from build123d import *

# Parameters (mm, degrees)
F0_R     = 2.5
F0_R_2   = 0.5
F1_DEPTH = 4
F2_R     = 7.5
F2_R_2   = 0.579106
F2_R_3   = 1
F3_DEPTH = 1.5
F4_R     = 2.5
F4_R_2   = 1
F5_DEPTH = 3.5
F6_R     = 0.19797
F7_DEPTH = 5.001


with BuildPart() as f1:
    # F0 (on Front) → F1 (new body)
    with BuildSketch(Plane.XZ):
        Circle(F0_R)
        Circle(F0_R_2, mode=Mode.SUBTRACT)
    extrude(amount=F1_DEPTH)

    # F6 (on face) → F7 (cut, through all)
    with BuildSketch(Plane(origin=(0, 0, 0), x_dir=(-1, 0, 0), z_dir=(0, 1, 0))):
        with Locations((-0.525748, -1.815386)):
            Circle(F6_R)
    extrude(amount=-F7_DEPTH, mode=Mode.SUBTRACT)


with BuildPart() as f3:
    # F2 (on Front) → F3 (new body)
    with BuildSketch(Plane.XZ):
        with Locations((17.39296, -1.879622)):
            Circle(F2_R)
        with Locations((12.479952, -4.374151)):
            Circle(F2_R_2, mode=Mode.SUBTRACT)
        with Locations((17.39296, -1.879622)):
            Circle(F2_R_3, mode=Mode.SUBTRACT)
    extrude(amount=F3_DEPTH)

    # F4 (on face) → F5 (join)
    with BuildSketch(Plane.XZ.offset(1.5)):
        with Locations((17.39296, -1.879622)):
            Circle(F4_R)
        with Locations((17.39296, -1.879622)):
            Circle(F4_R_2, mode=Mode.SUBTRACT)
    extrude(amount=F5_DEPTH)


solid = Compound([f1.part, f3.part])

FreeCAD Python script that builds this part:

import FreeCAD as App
import Part
import Sketcher

V = App.Vector
Q = App.Units.Quantity

doc = App.newDocument("Part")
body = doc.addObject("PartDesign::Body", "Body")

# Sketch on XZ plane
sketch1 = body.newObject("Sketcher::SketchObject", "Sketch")
sketch1.AttachmentSupport = (doc.getObject("XZ_Plane"), [""])
sketch1.MapMode = "FlatFace"
sketch1.addGeometry(Part.Circle(V(0, 0, 0), V(0, 0, 1), 2.5), False)
sketch1.addGeometry(Part.Circle(V(0, 0, 0), V(0, 0, 1), 0.5), False)
sketch1.addConstraint(Sketcher.Constraint("Coincident", 0, 3, -1, 1))
sketch1.addConstraint(Sketcher.Constraint("Coincident", 1, 3, -1, 1))
sketch1.addConstraint(Sketcher.Constraint("Diameter", 0, Q("5 mm")))
sketch1.addConstraint(Sketcher.Constraint("Diameter", 1, Q("1 mm")))
pad1 = body.newObject("PartDesign::Pad", "Pad")
pad1.Profile = sketch1
pad1.Length = 4

# Sketch on XZ plane
sketch2 = body.newObject("Sketcher::SketchObject", "Sketch001")
sketch2.AttachmentSupport = (doc.getObject("XZ_Plane"), [""])
sketch2.MapMode = "FlatFace"
sketch2.addGeometry(Part.Circle(V(0.53, -1.82, 0), V(0, 0, 1), 0.2), False)
sketch2.addConstraint(Sketcher.Constraint("Diameter", 0, Q("0.39594 mm")))
sketch2.addConstraint(Sketcher.Constraint("DistanceX", -1, 1, 0, 3, Q("0.525748 mm")))
sketch2.addConstraint(Sketcher.Constraint("DistanceY", 0, 3, -1, 1, Q("1.815386 mm")))
pocket1 = body.newObject("PartDesign::Pocket", "Pocket")
pocket1.Profile = sketch2
pocket1.Type = "ThroughAll"
pocket1.Reversed = True
body2 = doc.addObject("PartDesign::Body", "Body001")

# Sketch on XZ plane
sketch3 = body2.newObject("Sketcher::SketchObject", "Sketch002")
sketch3.AttachmentSupport = (doc.getObject("XZ_Plane001"), [""])
sketch3.MapMode = "FlatFace"
sketch3.addGeometry(Part.Circle(V(17.4, -1.9, 0), V(0, 0, 1), 7.5), False)
sketch3.addGeometry(Part.Circle(V(12.5, -4.4, 0), V(0, 0, 1), 0.6), False)
sketch3.addGeometry(Part.Circle(V(17.4, -1.9, 0), V(0, 0, 1), 1), False)
sketch3.addConstraint(Sketcher.Constraint("Coincident", 2, 3, 0, 3))
sketch3.addConstraint(Sketcher.Constraint("Diameter", 0, Q("15 mm")))
sketch3.addConstraint(Sketcher.Constraint("Diameter", 2, Q("2 mm")))
sketch3.addConstraint(Sketcher.Constraint("Diameter", 1, Q("1.158212 mm")))
sketch3.addConstraint(Sketcher.Constraint("DistanceX", -1, 1, 0, 3, Q("17.39296 mm")))
sketch3.addConstraint(Sketcher.Constraint("DistanceY", 0, 3, -1, 1, Q("1.879622 mm")))
sketch3.addConstraint(Sketcher.Constraint("DistanceY", 1, 3, -1, 1, Q("4.374151 mm")))
sketch3.addConstraint(Sketcher.Constraint("DistanceX", -1, 1, 1, 3, Q("12.479952 mm")))
pad2 = body2.newObject("PartDesign::Pad", "Pad001")
pad2.Profile = sketch3
pad2.Length = 1.5

# Sketch on XZ plane
sketch4 = body2.newObject("Sketcher::SketchObject", "Sketch003")
sketch4.AttachmentSupport = (doc.getObject("XZ_Plane001"), [""])
sketch4.MapMode = "FlatFace"
sketch4.AttachmentOffset = App.Placement(V(0, 0, 1.5), App.Rotation())
sketch4.addGeometry(Part.Circle(V(17.4, -1.9, 0), V(0, 0, 1), 2.5), False)
sketch4.addGeometry(Part.Circle(V(17.4, -1.9, 0), V(0, 0, 1), 1), False)
sketch4.addConstraint(Sketcher.Constraint("Coincident", 1, 3, 0, 3))
sketch4.addConstraint(Sketcher.Constraint("Diameter", 0, Q("5 mm")))
sketch4.addConstraint(Sketcher.Constraint("Diameter", 1, Q("2 mm")))
sketch4.addConstraint(Sketcher.Constraint("DistanceX", -1, 1, 0, 3, Q("17.39296 mm")))
sketch4.addConstraint(Sketcher.Constraint("DistanceY", 0, 3, -1, 1, Q("1.879622 mm")))
pad3 = body2.newObject("PartDesign::Pad", "Pad002")
pad3.Profile = sketch4
pad3.Length = 3.5

doc.recompute()
